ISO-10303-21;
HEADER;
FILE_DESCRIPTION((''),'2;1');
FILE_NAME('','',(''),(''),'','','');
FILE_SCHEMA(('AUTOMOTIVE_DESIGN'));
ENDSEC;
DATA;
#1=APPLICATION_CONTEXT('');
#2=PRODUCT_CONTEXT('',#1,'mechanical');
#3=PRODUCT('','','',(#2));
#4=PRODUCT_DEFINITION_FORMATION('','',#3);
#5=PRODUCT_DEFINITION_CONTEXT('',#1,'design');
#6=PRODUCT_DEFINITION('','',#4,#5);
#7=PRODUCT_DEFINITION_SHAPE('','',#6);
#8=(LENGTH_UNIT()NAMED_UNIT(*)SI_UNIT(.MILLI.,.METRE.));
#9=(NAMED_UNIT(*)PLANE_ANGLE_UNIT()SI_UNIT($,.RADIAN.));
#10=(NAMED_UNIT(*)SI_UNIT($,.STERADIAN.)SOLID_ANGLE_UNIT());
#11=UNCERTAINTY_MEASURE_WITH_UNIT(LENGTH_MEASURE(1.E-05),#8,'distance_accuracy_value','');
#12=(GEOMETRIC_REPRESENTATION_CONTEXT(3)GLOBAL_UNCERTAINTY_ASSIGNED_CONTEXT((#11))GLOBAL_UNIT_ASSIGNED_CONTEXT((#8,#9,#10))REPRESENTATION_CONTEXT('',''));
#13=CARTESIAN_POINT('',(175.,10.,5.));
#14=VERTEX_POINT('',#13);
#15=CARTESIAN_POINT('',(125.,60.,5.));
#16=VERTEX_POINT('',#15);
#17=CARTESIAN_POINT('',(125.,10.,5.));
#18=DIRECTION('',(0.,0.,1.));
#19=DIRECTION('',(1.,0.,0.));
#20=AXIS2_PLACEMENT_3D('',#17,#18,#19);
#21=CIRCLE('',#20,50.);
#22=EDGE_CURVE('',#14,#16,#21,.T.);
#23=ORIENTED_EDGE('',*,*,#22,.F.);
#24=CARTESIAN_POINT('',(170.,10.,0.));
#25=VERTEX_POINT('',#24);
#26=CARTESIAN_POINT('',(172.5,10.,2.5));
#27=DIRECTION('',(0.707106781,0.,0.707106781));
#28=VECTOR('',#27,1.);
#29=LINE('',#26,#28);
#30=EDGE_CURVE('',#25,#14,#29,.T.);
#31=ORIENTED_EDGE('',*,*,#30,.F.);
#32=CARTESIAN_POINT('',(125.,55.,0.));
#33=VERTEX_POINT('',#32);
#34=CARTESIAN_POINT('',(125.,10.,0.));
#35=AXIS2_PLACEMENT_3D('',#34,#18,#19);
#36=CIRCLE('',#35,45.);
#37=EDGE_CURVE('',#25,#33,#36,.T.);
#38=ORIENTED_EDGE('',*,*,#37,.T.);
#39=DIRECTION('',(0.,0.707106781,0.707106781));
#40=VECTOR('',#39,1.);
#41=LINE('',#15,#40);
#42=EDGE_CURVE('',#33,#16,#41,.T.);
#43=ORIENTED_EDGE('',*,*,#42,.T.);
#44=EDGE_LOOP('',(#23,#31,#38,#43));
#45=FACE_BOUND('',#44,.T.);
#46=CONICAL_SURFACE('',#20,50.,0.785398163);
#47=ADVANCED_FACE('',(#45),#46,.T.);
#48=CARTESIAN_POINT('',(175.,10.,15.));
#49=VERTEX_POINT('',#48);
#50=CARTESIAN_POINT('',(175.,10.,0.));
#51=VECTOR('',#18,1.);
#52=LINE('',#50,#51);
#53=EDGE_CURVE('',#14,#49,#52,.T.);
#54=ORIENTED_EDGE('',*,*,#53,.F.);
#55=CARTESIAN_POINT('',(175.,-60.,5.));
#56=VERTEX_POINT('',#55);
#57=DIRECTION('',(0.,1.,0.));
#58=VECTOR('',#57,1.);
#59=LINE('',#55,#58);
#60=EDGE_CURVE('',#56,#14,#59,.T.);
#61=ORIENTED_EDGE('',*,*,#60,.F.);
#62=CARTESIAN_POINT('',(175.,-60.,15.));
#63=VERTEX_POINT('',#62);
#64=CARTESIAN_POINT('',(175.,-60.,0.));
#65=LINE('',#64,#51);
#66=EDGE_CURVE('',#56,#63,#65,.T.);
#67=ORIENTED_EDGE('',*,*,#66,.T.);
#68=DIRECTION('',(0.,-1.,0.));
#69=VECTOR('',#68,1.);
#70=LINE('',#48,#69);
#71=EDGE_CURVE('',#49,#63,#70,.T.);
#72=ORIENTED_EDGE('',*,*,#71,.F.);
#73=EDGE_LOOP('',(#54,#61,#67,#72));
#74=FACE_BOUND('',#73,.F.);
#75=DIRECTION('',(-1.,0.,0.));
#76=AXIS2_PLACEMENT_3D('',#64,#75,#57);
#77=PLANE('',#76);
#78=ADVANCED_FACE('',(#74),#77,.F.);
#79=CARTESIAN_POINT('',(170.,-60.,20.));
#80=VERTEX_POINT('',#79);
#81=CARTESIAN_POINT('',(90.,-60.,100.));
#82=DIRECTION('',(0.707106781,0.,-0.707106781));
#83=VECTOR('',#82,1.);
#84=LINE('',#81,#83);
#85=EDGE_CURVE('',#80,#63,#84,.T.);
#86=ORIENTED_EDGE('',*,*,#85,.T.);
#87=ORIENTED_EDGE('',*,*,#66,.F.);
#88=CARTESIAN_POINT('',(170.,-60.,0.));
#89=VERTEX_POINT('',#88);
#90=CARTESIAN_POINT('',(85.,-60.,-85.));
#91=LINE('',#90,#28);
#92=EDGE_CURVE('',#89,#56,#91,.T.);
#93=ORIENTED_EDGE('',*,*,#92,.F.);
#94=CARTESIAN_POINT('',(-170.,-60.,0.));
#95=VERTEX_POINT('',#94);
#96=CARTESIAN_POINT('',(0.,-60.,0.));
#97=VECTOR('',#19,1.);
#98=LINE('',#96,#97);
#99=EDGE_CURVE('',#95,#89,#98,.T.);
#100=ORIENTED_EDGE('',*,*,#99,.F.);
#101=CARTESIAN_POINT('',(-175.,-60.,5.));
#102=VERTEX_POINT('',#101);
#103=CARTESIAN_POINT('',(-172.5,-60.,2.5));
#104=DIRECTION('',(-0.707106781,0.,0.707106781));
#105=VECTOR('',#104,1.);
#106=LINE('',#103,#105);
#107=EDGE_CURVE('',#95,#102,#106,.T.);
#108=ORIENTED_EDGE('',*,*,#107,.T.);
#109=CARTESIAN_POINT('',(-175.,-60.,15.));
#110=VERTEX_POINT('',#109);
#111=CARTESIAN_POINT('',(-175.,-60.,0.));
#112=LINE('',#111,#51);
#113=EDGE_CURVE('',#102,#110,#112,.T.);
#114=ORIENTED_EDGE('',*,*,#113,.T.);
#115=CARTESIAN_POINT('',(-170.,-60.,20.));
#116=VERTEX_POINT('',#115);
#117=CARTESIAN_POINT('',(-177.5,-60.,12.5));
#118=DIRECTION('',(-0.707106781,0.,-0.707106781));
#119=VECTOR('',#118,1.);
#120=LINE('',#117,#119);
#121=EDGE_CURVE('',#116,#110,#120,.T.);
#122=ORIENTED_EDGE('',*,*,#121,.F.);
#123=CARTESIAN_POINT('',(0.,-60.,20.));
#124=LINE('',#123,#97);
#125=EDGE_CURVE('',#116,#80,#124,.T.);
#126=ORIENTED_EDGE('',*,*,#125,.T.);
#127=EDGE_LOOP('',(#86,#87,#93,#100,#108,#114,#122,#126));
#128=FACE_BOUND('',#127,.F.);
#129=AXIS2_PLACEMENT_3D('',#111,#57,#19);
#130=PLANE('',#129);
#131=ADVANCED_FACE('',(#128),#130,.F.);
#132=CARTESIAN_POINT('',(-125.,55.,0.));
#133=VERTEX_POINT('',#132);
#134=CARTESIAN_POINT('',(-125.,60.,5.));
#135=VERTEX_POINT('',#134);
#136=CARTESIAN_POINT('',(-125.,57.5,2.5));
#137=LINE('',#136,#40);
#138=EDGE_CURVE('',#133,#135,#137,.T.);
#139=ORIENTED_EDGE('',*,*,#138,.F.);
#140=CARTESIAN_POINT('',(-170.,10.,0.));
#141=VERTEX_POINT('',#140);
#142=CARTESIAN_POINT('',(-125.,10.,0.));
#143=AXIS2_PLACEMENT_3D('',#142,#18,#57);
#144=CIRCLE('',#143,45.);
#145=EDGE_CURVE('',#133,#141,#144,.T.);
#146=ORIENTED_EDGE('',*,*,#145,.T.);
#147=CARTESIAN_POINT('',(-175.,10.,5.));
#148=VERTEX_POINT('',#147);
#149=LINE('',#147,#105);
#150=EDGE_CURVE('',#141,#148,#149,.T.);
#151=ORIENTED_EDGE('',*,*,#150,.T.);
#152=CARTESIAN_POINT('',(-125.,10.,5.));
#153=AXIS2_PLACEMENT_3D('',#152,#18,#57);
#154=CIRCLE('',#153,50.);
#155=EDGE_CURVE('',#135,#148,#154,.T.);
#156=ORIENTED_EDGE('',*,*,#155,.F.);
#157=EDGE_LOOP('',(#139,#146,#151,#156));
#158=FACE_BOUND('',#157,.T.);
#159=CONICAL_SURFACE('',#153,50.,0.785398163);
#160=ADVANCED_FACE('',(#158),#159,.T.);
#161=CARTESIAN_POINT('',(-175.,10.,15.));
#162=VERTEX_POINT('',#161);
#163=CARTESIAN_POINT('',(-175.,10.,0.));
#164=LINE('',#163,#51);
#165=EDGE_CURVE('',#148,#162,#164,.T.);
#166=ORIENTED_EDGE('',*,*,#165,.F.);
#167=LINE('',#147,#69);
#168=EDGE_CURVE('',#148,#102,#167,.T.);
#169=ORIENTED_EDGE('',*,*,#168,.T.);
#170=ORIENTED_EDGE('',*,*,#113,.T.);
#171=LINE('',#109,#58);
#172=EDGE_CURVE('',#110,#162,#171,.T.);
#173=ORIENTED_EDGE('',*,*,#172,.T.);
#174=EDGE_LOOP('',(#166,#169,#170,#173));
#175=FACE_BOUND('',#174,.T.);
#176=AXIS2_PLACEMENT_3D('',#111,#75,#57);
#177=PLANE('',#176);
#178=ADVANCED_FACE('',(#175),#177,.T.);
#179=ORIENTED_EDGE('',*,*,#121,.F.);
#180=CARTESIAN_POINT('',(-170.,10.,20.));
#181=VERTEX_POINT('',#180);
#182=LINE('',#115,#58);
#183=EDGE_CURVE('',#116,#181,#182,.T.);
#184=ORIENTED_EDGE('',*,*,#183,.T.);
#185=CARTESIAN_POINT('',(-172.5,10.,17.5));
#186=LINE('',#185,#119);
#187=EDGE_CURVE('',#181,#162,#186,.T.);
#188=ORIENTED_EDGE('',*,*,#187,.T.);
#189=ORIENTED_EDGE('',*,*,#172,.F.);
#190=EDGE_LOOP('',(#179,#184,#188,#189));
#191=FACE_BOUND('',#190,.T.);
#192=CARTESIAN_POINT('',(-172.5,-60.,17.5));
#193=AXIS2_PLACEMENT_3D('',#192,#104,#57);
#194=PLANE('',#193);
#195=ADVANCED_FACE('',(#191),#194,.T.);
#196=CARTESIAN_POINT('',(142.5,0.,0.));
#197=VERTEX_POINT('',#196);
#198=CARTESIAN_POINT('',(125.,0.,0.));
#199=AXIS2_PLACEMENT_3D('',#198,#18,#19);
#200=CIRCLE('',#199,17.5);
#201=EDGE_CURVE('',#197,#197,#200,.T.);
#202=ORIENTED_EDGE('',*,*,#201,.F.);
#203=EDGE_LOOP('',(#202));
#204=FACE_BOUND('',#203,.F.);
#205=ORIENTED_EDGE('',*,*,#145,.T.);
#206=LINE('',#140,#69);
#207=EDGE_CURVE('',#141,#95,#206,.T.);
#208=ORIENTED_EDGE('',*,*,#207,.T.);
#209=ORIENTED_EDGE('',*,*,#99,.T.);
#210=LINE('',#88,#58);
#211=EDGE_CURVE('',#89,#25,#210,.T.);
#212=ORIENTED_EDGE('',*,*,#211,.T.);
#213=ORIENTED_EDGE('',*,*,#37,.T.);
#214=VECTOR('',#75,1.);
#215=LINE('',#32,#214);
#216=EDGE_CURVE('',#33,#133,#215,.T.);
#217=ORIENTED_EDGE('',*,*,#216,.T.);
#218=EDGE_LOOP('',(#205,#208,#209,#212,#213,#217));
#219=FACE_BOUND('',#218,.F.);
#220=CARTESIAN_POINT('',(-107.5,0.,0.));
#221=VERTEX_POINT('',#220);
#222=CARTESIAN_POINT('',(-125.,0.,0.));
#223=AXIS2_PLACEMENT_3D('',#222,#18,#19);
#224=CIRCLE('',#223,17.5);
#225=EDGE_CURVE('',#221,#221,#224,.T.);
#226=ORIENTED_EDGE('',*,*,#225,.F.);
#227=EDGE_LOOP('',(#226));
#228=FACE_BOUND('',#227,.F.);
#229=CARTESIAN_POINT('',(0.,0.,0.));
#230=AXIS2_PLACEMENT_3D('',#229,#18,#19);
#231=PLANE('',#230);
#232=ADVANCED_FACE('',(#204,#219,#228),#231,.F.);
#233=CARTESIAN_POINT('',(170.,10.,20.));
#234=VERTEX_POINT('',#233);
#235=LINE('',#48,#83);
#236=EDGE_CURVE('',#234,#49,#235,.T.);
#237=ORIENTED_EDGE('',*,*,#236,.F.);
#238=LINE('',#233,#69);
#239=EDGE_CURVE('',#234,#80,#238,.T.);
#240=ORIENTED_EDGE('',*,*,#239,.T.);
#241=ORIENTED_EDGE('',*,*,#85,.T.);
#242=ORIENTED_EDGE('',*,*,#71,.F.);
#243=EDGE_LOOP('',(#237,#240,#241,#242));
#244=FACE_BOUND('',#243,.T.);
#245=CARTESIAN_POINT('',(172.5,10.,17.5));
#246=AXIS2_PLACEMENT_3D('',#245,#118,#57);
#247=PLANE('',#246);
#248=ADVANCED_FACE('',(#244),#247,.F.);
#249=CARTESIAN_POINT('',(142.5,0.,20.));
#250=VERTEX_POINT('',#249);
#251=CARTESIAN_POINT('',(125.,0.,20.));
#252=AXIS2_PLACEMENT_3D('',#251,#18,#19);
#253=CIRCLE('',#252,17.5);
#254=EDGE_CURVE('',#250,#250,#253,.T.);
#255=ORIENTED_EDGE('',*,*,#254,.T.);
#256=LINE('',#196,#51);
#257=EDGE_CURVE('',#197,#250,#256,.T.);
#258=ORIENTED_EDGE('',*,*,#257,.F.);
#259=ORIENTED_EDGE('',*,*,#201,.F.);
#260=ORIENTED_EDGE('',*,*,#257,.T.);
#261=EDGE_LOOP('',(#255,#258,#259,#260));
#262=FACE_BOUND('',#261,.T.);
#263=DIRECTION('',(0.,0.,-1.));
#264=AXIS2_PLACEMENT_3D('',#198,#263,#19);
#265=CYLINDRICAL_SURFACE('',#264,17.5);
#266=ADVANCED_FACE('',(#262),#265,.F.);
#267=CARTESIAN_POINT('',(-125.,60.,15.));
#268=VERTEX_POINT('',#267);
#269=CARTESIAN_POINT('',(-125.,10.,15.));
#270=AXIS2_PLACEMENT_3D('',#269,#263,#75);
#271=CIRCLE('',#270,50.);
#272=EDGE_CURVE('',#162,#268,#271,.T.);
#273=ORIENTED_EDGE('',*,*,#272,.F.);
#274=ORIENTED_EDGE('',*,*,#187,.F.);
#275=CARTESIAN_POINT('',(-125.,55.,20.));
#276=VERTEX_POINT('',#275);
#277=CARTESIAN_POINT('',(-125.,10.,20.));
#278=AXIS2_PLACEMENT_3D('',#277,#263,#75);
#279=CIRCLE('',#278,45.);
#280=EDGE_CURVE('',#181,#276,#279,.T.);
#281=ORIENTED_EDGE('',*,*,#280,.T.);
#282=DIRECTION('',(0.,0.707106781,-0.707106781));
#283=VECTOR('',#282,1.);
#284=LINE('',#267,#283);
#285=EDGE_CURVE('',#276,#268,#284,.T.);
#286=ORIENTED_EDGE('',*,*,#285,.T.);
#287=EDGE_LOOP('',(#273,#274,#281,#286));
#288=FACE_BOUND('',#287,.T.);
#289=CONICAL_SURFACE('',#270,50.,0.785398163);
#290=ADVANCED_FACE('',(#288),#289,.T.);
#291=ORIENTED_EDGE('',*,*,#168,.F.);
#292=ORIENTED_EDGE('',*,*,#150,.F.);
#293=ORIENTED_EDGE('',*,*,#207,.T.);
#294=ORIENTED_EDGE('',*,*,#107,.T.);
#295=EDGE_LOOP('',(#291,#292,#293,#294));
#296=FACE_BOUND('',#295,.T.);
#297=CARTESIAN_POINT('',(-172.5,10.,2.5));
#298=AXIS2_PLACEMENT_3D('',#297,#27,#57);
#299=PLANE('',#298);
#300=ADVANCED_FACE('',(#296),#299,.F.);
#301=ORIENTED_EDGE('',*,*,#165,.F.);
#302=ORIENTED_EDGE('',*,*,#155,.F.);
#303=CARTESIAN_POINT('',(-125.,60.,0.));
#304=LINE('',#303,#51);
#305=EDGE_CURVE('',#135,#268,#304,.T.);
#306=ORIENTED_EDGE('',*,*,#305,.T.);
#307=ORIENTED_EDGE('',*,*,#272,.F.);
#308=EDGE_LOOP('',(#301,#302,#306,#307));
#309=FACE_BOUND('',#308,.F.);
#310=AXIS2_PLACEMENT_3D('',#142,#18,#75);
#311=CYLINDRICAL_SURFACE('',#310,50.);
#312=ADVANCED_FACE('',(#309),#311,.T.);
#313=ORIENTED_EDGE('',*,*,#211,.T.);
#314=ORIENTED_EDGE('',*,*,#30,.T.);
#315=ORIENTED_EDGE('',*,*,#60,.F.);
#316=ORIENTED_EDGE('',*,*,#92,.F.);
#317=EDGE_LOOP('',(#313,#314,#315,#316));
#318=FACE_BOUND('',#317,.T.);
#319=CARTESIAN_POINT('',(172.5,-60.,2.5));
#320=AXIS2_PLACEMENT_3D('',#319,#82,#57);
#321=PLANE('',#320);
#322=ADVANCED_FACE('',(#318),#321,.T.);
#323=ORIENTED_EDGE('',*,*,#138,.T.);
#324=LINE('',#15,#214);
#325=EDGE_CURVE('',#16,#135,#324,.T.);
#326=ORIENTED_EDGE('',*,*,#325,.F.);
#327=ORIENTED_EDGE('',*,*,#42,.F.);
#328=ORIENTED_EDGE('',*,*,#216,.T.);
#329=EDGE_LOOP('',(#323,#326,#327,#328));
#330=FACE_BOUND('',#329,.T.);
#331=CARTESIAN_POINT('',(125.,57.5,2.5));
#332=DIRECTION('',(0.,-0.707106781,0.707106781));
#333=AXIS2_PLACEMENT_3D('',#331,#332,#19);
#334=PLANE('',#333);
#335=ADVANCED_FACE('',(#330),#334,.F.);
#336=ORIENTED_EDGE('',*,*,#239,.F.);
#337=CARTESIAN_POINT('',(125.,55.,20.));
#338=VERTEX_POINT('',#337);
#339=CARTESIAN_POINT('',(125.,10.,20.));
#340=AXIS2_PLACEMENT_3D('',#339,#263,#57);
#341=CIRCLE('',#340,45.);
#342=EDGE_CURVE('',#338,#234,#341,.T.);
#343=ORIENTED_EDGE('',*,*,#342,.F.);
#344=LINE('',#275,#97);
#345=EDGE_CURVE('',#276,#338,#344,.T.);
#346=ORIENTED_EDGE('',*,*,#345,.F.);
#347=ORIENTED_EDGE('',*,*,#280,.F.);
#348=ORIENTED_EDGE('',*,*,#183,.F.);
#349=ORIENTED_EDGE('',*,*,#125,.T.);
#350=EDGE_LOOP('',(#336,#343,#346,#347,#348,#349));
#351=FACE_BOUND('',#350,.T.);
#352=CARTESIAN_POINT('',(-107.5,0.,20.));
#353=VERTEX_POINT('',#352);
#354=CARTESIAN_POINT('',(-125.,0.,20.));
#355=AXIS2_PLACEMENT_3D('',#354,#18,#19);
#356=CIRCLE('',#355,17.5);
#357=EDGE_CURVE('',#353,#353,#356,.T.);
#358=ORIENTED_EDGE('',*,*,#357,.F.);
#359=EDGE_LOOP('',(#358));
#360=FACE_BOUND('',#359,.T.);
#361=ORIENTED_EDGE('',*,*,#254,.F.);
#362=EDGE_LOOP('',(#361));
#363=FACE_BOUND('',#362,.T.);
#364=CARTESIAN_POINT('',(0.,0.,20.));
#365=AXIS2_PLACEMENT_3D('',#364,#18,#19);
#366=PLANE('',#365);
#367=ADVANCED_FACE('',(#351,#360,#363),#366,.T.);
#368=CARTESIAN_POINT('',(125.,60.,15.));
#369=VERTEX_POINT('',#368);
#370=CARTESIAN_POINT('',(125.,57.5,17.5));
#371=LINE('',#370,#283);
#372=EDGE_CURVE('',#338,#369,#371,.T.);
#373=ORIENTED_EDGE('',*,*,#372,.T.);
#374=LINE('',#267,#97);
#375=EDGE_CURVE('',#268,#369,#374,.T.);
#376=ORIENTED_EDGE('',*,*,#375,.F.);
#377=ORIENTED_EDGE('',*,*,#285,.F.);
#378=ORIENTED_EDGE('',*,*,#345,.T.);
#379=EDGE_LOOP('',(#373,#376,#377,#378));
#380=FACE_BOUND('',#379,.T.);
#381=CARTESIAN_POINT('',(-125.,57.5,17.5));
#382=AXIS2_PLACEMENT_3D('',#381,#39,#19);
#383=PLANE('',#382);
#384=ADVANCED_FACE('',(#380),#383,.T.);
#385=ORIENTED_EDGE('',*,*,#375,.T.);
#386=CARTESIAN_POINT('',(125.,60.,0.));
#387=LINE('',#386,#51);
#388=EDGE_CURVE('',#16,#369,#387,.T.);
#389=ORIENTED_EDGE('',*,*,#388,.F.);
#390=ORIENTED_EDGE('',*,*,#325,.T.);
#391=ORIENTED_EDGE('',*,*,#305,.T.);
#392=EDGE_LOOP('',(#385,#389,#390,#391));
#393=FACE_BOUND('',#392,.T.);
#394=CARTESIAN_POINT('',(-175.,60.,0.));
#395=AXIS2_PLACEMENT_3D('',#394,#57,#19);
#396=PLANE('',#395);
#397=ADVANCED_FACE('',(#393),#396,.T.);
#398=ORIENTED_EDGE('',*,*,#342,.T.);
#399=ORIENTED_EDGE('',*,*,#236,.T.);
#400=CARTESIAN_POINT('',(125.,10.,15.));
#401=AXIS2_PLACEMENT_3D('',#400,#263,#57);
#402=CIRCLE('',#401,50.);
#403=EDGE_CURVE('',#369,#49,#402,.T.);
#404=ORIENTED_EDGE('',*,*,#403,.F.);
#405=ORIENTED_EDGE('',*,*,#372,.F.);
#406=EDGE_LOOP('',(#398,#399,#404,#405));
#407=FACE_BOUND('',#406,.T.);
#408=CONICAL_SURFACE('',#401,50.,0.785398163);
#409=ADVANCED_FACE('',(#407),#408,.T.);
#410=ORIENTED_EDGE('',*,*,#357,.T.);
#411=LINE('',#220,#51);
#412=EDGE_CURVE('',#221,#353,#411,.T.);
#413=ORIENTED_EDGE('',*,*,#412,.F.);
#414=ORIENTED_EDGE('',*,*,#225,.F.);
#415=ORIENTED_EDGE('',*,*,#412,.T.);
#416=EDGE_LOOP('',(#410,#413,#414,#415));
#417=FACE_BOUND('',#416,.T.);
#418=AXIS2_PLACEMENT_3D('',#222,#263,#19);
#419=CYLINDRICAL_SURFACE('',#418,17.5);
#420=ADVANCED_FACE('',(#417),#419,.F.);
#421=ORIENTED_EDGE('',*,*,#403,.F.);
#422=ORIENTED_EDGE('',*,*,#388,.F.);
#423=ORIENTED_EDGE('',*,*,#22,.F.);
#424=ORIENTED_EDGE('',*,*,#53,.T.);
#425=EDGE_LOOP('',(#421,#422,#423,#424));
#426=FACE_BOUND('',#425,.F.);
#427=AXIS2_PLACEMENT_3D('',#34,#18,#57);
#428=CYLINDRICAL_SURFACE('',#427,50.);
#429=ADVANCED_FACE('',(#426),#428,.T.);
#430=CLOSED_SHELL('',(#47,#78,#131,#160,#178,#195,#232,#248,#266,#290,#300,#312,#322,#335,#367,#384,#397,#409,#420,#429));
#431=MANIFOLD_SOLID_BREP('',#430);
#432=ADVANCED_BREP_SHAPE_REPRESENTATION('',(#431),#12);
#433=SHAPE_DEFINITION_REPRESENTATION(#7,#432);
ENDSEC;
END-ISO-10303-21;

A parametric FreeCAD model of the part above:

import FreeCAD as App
import Part
import Sketcher
from FreeCAD import Vector


def edges_at(feature, points):
    """Names of the edges that pass closest to the given points."""
    edges = feature.Shape.Edges
    near = lambda p: min(range(len(edges)), key=lambda i: edges[i].distToShape(Part.Vertex(*p))[0])
    return sorted({f"Edge{near(p) + 1}" for p in points})

doc = App.newDocument("Part")
body = doc.addObject("PartDesign::Body", "Body")

# Sketch on XY plane
sketch1 = body.newObject("Sketcher::SketchObject", "Sketch")
sketch1.AttachmentSupport = (doc.getObject("XY_Plane"), [""])
sketch1.MapMode = "FlatFace"
sketch1.addGeometry(Part.LineSegment(Vector(-175, 60, 0), Vector(-175, -60, 0)), False)
sketch1.addGeometry(Part.LineSegment(Vector(-175, -60, 0), Vector(175, -60, 0)), False)
sketch1.addGeometry(Part.LineSegment(Vector(175, -60, 0), Vector(175, 60, 0)), False)
sketch1.addGeometry(Part.LineSegment(Vector(175, 60, 0), Vector(-175, 60, 0)), False)
sketch1.addGeometry(Part.Circle(Vector(-125, 0, 0), Vector(0, 0, 1), 18), False)
sketch1.addGeometry(Part.Circle(Vector(125, 0, 0), Vector(0, 0, 1), 18), False)
sketch1.addConstraint(Sketcher.Constraint("Coincident", 0, 2, 1, 1))
sketch1.addConstraint(Sketcher.Constraint("Coincident", 1, 2, 2, 1))
sketch1.addConstraint(Sketcher.Constraint("Coincident", 2, 2, 3, 1))
sketch1.addConstraint(Sketcher.Constraint("Coincident", 3, 2, 0, 1))
sketch1.addConstraint(Sketcher.Constraint("Vertical", 0))
sketch1.addConstraint(Sketcher.Constraint("Horizontal", 1))
sketch1.addConstraint(Sketcher.Constraint("Vertical", 2))
sketch1.addConstraint(Sketcher.Constraint("Horizontal", 3))
sketch1.addConstraint(Sketcher.Constraint("Equal", 4, 5))
sketch1.addConstraint(Sketcher.Constraint("Symmetric", 4, 3, 5, 3, -1, 1))
sketch1.addConstraint(Sketcher.Constraint("Symmetric", 0, 2, 2, 2, -1, 1))
sketch1.addConstraint(Sketcher.Constraint("PointOnObject", 4, 3, -1))
sketch1.addConstraint(Sketcher.Constraint("Diameter", 4, 35.0))
sketch1.addConstraint(Sketcher.Constraint("DistanceX", 1, 1, 1, 2, 350.0))
sketch1.addConstraint(Sketcher.Constraint("DistanceY", 0, 2, 0, 1, 120.0))
sketch1.addConstraint(Sketcher.Constraint("DistanceX", 4, 3, -1, 1, 125.0))
pad1 = body.newObject("PartDesign::Pad", "Pad")
pad1.Profile = sketch1
pad1.Length = 20
doc.recompute()

fillet = body.newObject("PartDesign::Fillet", "Fillet")
fillet.Base = (pad1, edges_at(pad1, [(175, 60, 10), (-175, 60, 10)]))
fillet.Radius = 50
doc.recompute()

chamfer = body.newObject("PartDesign::Chamfer", "Chamfer")
chamfer.Base = (fillet, edges_at(fillet, [(175, -25, 0), (0, 60, 20)]))
chamfer.Size = 5

doc.recompute()
